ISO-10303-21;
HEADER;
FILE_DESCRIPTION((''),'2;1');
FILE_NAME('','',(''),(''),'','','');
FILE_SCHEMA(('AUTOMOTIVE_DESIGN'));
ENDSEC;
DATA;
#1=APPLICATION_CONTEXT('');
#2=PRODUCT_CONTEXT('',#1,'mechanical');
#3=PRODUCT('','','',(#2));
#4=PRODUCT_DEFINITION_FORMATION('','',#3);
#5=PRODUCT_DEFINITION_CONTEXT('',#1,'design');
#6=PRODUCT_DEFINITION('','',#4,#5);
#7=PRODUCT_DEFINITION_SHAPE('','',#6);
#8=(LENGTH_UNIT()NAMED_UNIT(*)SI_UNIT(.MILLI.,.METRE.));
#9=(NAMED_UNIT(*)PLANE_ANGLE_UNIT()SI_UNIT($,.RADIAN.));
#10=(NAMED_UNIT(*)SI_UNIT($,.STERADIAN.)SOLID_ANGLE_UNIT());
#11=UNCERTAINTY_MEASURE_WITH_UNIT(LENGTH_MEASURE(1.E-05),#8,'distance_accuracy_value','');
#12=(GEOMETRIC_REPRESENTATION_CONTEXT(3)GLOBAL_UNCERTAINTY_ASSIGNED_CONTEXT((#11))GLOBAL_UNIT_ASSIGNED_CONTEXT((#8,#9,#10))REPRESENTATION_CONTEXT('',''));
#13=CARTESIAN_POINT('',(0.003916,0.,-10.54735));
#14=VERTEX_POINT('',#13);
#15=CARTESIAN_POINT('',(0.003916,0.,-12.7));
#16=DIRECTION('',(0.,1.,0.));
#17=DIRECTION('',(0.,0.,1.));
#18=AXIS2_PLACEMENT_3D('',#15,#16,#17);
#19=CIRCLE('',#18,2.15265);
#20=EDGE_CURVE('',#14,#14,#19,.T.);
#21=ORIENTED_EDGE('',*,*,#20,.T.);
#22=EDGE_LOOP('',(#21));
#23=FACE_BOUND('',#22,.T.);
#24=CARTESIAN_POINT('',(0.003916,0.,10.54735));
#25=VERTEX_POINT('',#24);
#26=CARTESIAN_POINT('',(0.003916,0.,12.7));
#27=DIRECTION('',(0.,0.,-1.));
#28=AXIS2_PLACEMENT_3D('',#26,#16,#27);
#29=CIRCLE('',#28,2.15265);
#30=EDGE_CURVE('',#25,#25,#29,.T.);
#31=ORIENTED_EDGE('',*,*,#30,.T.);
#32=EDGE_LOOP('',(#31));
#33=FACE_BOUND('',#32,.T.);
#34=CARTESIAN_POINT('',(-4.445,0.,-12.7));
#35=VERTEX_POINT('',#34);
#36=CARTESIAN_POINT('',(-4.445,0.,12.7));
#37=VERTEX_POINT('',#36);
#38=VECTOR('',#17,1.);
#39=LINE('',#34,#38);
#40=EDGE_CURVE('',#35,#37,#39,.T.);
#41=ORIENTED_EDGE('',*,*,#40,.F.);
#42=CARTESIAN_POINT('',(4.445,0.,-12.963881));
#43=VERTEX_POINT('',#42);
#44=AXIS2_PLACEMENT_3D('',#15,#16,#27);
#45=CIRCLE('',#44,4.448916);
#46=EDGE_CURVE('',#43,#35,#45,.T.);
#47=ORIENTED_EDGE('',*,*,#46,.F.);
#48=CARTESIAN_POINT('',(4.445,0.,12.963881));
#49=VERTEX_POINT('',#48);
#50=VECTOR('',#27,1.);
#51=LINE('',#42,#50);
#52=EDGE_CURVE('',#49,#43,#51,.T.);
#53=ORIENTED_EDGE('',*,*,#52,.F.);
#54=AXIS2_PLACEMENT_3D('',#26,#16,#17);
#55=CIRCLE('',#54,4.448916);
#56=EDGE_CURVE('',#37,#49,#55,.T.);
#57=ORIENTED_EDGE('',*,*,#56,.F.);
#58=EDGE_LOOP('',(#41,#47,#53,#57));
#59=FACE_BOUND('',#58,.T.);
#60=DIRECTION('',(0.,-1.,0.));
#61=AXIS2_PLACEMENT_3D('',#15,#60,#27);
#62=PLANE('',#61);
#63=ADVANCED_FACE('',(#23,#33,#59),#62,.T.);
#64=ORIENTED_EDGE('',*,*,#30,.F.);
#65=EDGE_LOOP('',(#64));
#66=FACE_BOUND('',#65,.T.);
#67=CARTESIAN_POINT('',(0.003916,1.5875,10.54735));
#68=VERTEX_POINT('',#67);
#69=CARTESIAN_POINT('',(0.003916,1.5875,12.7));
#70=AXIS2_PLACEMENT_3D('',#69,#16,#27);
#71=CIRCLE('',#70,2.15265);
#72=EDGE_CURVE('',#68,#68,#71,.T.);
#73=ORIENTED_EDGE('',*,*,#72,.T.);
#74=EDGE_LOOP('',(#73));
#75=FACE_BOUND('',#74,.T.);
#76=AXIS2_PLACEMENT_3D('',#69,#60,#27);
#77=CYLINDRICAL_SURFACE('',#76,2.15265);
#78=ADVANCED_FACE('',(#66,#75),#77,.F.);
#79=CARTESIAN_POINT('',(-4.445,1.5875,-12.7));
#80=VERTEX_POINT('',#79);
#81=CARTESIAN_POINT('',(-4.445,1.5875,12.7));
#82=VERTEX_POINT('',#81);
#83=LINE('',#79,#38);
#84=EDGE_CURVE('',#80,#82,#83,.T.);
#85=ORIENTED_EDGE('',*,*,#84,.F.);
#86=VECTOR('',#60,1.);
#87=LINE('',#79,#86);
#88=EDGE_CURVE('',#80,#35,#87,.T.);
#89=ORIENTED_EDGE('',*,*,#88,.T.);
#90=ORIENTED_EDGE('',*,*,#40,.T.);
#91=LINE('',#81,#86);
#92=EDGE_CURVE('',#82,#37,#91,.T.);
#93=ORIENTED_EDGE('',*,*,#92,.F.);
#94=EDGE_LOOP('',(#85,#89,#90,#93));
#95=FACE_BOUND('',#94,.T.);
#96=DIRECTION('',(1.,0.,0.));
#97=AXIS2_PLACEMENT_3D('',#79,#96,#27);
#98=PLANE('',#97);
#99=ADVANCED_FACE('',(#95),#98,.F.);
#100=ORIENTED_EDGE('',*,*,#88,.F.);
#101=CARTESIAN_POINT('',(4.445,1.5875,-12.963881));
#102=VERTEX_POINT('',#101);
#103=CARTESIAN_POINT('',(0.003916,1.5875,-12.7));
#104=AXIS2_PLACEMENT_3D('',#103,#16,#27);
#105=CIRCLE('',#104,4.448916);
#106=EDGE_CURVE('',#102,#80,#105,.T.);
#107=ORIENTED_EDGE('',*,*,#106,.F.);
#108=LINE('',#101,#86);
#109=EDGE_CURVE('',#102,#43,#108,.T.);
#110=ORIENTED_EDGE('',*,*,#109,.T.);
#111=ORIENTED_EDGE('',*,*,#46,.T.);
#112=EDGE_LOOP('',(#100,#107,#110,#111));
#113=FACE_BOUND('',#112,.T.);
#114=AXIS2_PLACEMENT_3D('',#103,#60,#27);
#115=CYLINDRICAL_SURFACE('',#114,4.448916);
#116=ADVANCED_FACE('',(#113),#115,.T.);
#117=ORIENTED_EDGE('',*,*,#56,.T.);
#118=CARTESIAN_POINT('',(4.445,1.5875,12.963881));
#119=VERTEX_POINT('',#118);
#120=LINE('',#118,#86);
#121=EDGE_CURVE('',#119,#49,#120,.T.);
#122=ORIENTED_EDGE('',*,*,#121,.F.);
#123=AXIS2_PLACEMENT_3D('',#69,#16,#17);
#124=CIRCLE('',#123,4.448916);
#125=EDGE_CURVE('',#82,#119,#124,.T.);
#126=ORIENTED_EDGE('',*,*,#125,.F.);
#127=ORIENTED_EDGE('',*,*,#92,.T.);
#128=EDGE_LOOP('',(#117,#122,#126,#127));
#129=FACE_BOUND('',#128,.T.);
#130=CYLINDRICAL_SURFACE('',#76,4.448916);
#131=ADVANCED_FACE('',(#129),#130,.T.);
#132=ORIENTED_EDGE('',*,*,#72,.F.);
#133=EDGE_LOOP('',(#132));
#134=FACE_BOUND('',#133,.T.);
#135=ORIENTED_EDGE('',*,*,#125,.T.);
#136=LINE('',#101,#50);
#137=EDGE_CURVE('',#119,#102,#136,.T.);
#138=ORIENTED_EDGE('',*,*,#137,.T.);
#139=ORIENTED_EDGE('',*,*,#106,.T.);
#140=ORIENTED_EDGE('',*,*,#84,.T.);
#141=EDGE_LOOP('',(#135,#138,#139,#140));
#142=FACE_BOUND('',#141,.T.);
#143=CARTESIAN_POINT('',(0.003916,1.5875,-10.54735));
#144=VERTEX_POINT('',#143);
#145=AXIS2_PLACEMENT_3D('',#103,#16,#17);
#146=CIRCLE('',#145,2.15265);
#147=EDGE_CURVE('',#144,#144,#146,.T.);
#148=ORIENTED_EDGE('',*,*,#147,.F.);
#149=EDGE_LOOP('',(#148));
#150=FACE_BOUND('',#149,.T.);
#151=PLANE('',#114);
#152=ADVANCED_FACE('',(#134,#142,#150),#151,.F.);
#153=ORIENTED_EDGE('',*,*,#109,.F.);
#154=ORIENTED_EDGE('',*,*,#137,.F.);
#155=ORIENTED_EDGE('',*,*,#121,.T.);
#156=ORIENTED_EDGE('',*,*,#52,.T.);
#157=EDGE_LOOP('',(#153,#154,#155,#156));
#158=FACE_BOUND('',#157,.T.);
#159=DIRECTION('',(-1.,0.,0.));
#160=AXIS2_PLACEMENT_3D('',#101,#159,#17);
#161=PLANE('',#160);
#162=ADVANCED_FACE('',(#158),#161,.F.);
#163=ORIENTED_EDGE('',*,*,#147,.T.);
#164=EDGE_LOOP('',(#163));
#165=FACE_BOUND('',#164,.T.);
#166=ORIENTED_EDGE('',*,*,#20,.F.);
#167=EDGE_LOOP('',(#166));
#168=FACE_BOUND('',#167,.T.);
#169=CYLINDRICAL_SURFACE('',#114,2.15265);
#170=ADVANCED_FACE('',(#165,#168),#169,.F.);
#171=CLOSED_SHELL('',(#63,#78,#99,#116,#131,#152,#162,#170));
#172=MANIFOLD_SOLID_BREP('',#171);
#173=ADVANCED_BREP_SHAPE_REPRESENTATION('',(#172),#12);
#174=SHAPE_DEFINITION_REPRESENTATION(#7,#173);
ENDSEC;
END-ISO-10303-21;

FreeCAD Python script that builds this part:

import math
import FreeCAD as App
import Part
import Sketcher
Q = App.Units.Quantity

doc = App.newDocument("Part")
body = doc.addObject("PartDesign::Body", "Body")

sketch1 = doc.addObject("Sketcher::SketchObject", "Sketch")
body.addObject(sketch1)
sketch1.AttachmentSupport = (doc.XZ_Plane, [""])
sketch1.MapMode = "FlatFace"
sketch1.addGeometry([
    Part.LineSegment(App.Vector(-4.4, -12.7, 0), App.Vector(-4.4, 12.7, 0)),
    Part.ArcOfCircle(Part.Circle(App.Vector(0, 12.7, 0), App.Vector(0, 0, 1), 4.4), math.radians(3), math.radians(180)),
    Part.LineSegment(App.Vector(4.4, 13, 0), App.Vector(4.4, -13, 0)),
    Part.ArcOfCircle(Part.Circle(App.Vector(0, -12.7, 0), App.Vector(0, 0, 1), 4.4), math.radians(180), math.radians(357)),
    Part.Circle(App.Vector(0, 12.7, 0), App.Vector(0, 0, 1), 2.2),
    Part.Circle(App.Vector(0, -12.7, 0), App.Vector(0, 0, 1), 2.2),
], False)
sketch1.addConstraint([
    Sketcher.Constraint("Tangent", 0, 2, 1, 2),
    Sketcher.Constraint("Coincident", 1, 1, 2, 1),
    Sketcher.Constraint("Coincident", 2, 2, 3, 2),
    Sketcher.Constraint("Tangent", 3, 1, 0, 1),
    Sketcher.Constraint("Vertical", 0),
    Sketcher.Constraint("Vertical", 2),
    Sketcher.Constraint("Coincident", 4, 3, 1, 3),
    Sketcher.Constraint("Coincident", 5, 3, 3, 3),
    Sketcher.Constraint("Equal", 1, 3),
    Sketcher.Constraint("Equal", 4, 5),
    Sketcher.Constraint("DistanceY", 0, 1, 0, 2, Q("1 in")),
    Sketcher.Constraint("Diameter", 4, Q("0.1695 in")),
    Sketcher.Constraint("DistanceY", -1, 1, 1, 3, Q("0.5 in")),
    Sketcher.Constraint("DistanceX", 0, 2, 1, 1, Q("0.35 in")),
    Sketcher.Constraint("DistanceX", 0, 2, -1, 1, Q("0.175 in")),
    Sketcher.Constraint("Radius", 1, Q("4.448916 mm")),
])
pad1 = doc.addObject("PartDesign::Pad", "Pad")
body.addObject(pad1)
pad1.Profile = sketch1
pad1.Length = Q("0.0625 in")
pad1.Reversed = True

doc.recompute()
